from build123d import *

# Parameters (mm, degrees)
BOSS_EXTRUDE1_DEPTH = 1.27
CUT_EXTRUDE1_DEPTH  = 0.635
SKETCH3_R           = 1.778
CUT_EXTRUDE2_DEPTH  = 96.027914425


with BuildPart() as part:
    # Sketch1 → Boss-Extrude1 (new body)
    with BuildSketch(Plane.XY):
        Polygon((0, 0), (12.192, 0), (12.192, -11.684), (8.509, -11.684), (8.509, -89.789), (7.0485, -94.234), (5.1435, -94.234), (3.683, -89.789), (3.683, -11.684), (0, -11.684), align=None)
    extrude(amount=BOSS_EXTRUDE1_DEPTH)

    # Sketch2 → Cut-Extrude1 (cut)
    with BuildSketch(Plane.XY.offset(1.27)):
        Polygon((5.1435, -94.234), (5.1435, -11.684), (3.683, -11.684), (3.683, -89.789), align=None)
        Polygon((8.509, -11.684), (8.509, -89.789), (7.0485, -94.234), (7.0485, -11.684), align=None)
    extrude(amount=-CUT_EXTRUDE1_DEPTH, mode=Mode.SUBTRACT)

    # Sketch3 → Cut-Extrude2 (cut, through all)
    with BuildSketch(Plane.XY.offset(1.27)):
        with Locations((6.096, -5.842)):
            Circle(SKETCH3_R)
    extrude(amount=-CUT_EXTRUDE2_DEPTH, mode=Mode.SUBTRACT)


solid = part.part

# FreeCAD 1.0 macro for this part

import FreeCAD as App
import Part
import Sketcher

V = App.Vector
Q = App.Units.Quantity

doc = App.newDocument("Part")
body = doc.addObject("PartDesign::Body", "Body")

# Sketch on XY plane
sketch1 = body.newObject("Sketcher::SketchObject", "Sketch")
sketch1.AttachmentSupport = (doc.getObject("XY_Plane"), [""])
sketch1.MapMode = "FlatFace"
sketch1.addGeometry([
    Part.LineSegment(V(12.2, 0, 0), V(0, 0, 0)),  # 0
    Part.LineSegment(V(0, 0, 0), V(0, -11.7, 0)),  # 1
    Part.LineSegment(V(0, -11.7, 0), V(3.7, -11.7, 0)),  # 2
    Part.LineSegment(V(3.7, -11.7, 0), V(3.7, -89.8, 0)),  # 3
    Part.LineSegment(V(3.7, -89.8, 0), V(5.1, -94.2, 0)),  # 4
    Part.LineSegment(V(5.1, -94.2, 0), V(7, -94.2, 0)),  # 5
    Part.LineSegment(V(7, -94.2, 0), V(8.5, -89.8, 0)),  # 6
    Part.LineSegment(V(8.5, -89.8, 0), V(8.5, -11.7, 0)),  # 7
    Part.LineSegment(V(8.5, -11.7, 0), V(12.2, -11.7, 0)),  # 8
    Part.LineSegment(V(12.2, -11.7, 0), V(12.2, 0, 0)),  # 9
], False)
sketch1.addConstraint([
    Sketcher.Constraint("Coincident", 0, 2, 1, 1),
    Sketcher.Constraint("Coincident", 1, 2, 2, 1),
    Sketcher.Constraint("Coincident", 2, 2, 3, 1),
    Sketcher.Constraint("Coincident", 3, 2, 4, 1),
    Sketcher.Constraint("Coincident", 4, 2, 5, 1),
    Sketcher.Constraint("Coincident", 5, 2, 6, 1),
    Sketcher.Constraint("Coincident", 6, 2, 7, 1),
    Sketcher.Constraint("Coincident", 7, 2, 8, 1),
    Sketcher.Constraint("Coincident", 8, 2, 9, 1),
    Sketcher.Constraint("Coincident", 9, 2, 0, 1),
    Sketcher.Constraint("Horizontal", 0),
    Sketcher.Constraint("Vertical", 1),
    Sketcher.Constraint("Horizontal", 2),
    Sketcher.Constraint("Vertical", 3),
    Sketcher.Constraint("Horizontal", 5),
    Sketcher.Constraint("Vertical", 7),
    Sketcher.Constraint("Horizontal", 8),
    Sketcher.Constraint("Vertical", 9),
    Sketcher.Constraint("Coincident", 0, 2, -1, 1),
    Sketcher.Constraint("Horizontal", 3, 2, 6, 2),
    Sketcher.Constraint("Horizontal", 2, 2, 7, 2),
    Sketcher.Constraint("Equal", 2, 8),
    Sketcher.Constraint("Equal", 4, 6),
    Sketcher.Constraint("DistanceX", 0, 2, 0, 1, Q("0.48 in")),
    Sketcher.Constraint("DistanceY", 1, 2, 1, 1, Q("0.46 in")),
    Sketcher.Constraint("DistanceX", 2, 1, 2, 2, Q("0.145 in")),
    Sketcher.Constraint("DistanceX", 5, 1, 5, 2, Q("0.075 in")),
    Sketcher.Constraint("DistanceY", 3, 2, 3, 1, Q("3.075 in")),
    Sketcher.Constraint("DistanceY", 4, 2, -1, 1, Q("3.71 in")),
])
pad1 = body.newObject("PartDesign::Pad", "Pad")
pad1.Profile = sketch1
pad1.Length = Q("0.05 in")

# Sketch on XY plane
sketch2 = body.newObject("Sketcher::SketchObject", "Sketch001")
sketch2.AttachmentSupport = (doc.getObject("XY_Plane"), [""])
sketch2.MapMode = "FlatFace"
sketch2.AttachmentOffset = App.Placement(V(0, 0, 0.05 * 25.4), App.Rotation())
sketch2.addGeometry([
    Part.LineSegment(V(5.1, -94.2, 0), V(5.1, -11.7, 0)),  # 0
    Part.LineSegment(V(5.1, -11.7, 0), V(3.7, -11.7, 0)),  # 1
    Part.LineSegment(V(3.7, -11.7, 0), V(3.7, -89.8, 0)),  # 2
    Part.LineSegment(V(3.7, -89.8, 0), V(5.1, -94.2, 0)),  # 3
    Part.LineSegment(V(8.5, -89.8, 0), V(8.5, -11.7, 0)),  # 4
    Part.LineSegment(V(8.5, -11.7, 0), V(7, -11.7, 0)),  # 5
    Part.LineSegment(V(7, -11.7, 0), V(7, -94.2, 0)),  # 6
    Part.LineSegment(V(7, -94.2, 0), V(8.5, -89.8, 0)),  # 7
], False)
sketch2.addConstraint([
    Sketcher.Constraint("Coincident", 0, 2, 1, 1),
    Sketcher.Constraint("Coincident", 1, 2, 2, 1),
    Sketcher.Constraint("Coincident", 2, 2, 3, 1),
    Sketcher.Constraint("Coincident", 3, 2, 0, 1),
    Sketcher.Constraint("Coincident", 4, 2, 5, 1),
    Sketcher.Constraint("Coincident", 5, 2, 6, 1),
    Sketcher.Constraint("Coincident", 6, 2, 7, 1),
    Sketcher.Constraint("Coincident", 7, 2, 4, 1),
    Sketcher.Constraint("Vertical", 0),
    Sketcher.Constraint("Horizontal", 1),
    Sketcher.Constraint("Vertical", 2),
    Sketcher.Constraint("Vertical", 4),
    Sketcher.Constraint("Horizontal", 5),
    Sketcher.Constraint("Vertical", 6),
    Sketcher.Constraint("Horizontal", 1, 2, 4, 2),
    Sketcher.Constraint("Horizontal", 3, 2, 6, 2),
    Sketcher.Constraint("Horizontal", 2, 2, 7, 2),
    Sketcher.Constraint("Equal", 1, 5),
    Sketcher.Constraint("DistanceY", 0, 1, 0, 2, Q("3.25 in")),
    Sketcher.Constraint("DistanceY", 2, 2, 2, 1, Q("3.075 in")),
    Sketcher.Constraint("DistanceY", 0, 2, -1, 1, Q("0.46 in")),
    Sketcher.Constraint("DistanceX", 1, 2, 4, 2, Q("0.19 in")),
    Sketcher.Constraint("DistanceX", 1, 2, 1, 1, Q("0.0575 in")),
    Sketcher.Constraint("DistanceX", -1, 1, 1, 2, Q("0.145 in")),
])
pocket1 = body.newObject("PartDesign::Pocket", "Pocket")
pocket1.Profile = sketch2
pocket1.Length = Q("0.025 in")

# Sketch on XY plane
sketch3 = body.newObject("Sketcher::SketchObject", "Sketch002")
sketch3.AttachmentSupport = (doc.getObject("XY_Plane"), [""])
sketch3.MapMode = "FlatFace"
sketch3.AttachmentOffset = App.Placement(V(0, 0, 0.05 * 25.4), App.Rotation())
sketch3.addGeometry(Part.Circle(V(6.1, -5.8, 0), V(0, 0, 1), 1.8), False)
sketch3.addConstraint([
    Sketcher.Constraint("Diameter", 0, Q("0.14 in")),
    Sketcher.Constraint("DistanceX", -1, 1, 0, 3, Q("0.24 in")),
    Sketcher.Constraint("DistanceY", 0, 3, -1, 1, Q("0.23 in")),
])
pocket2 = body.newObject("PartDesign::Pocket", "Pocket001")
pocket2.Profile = sketch3
pocket2.Type = "ThroughAll"

doc.recompute()
